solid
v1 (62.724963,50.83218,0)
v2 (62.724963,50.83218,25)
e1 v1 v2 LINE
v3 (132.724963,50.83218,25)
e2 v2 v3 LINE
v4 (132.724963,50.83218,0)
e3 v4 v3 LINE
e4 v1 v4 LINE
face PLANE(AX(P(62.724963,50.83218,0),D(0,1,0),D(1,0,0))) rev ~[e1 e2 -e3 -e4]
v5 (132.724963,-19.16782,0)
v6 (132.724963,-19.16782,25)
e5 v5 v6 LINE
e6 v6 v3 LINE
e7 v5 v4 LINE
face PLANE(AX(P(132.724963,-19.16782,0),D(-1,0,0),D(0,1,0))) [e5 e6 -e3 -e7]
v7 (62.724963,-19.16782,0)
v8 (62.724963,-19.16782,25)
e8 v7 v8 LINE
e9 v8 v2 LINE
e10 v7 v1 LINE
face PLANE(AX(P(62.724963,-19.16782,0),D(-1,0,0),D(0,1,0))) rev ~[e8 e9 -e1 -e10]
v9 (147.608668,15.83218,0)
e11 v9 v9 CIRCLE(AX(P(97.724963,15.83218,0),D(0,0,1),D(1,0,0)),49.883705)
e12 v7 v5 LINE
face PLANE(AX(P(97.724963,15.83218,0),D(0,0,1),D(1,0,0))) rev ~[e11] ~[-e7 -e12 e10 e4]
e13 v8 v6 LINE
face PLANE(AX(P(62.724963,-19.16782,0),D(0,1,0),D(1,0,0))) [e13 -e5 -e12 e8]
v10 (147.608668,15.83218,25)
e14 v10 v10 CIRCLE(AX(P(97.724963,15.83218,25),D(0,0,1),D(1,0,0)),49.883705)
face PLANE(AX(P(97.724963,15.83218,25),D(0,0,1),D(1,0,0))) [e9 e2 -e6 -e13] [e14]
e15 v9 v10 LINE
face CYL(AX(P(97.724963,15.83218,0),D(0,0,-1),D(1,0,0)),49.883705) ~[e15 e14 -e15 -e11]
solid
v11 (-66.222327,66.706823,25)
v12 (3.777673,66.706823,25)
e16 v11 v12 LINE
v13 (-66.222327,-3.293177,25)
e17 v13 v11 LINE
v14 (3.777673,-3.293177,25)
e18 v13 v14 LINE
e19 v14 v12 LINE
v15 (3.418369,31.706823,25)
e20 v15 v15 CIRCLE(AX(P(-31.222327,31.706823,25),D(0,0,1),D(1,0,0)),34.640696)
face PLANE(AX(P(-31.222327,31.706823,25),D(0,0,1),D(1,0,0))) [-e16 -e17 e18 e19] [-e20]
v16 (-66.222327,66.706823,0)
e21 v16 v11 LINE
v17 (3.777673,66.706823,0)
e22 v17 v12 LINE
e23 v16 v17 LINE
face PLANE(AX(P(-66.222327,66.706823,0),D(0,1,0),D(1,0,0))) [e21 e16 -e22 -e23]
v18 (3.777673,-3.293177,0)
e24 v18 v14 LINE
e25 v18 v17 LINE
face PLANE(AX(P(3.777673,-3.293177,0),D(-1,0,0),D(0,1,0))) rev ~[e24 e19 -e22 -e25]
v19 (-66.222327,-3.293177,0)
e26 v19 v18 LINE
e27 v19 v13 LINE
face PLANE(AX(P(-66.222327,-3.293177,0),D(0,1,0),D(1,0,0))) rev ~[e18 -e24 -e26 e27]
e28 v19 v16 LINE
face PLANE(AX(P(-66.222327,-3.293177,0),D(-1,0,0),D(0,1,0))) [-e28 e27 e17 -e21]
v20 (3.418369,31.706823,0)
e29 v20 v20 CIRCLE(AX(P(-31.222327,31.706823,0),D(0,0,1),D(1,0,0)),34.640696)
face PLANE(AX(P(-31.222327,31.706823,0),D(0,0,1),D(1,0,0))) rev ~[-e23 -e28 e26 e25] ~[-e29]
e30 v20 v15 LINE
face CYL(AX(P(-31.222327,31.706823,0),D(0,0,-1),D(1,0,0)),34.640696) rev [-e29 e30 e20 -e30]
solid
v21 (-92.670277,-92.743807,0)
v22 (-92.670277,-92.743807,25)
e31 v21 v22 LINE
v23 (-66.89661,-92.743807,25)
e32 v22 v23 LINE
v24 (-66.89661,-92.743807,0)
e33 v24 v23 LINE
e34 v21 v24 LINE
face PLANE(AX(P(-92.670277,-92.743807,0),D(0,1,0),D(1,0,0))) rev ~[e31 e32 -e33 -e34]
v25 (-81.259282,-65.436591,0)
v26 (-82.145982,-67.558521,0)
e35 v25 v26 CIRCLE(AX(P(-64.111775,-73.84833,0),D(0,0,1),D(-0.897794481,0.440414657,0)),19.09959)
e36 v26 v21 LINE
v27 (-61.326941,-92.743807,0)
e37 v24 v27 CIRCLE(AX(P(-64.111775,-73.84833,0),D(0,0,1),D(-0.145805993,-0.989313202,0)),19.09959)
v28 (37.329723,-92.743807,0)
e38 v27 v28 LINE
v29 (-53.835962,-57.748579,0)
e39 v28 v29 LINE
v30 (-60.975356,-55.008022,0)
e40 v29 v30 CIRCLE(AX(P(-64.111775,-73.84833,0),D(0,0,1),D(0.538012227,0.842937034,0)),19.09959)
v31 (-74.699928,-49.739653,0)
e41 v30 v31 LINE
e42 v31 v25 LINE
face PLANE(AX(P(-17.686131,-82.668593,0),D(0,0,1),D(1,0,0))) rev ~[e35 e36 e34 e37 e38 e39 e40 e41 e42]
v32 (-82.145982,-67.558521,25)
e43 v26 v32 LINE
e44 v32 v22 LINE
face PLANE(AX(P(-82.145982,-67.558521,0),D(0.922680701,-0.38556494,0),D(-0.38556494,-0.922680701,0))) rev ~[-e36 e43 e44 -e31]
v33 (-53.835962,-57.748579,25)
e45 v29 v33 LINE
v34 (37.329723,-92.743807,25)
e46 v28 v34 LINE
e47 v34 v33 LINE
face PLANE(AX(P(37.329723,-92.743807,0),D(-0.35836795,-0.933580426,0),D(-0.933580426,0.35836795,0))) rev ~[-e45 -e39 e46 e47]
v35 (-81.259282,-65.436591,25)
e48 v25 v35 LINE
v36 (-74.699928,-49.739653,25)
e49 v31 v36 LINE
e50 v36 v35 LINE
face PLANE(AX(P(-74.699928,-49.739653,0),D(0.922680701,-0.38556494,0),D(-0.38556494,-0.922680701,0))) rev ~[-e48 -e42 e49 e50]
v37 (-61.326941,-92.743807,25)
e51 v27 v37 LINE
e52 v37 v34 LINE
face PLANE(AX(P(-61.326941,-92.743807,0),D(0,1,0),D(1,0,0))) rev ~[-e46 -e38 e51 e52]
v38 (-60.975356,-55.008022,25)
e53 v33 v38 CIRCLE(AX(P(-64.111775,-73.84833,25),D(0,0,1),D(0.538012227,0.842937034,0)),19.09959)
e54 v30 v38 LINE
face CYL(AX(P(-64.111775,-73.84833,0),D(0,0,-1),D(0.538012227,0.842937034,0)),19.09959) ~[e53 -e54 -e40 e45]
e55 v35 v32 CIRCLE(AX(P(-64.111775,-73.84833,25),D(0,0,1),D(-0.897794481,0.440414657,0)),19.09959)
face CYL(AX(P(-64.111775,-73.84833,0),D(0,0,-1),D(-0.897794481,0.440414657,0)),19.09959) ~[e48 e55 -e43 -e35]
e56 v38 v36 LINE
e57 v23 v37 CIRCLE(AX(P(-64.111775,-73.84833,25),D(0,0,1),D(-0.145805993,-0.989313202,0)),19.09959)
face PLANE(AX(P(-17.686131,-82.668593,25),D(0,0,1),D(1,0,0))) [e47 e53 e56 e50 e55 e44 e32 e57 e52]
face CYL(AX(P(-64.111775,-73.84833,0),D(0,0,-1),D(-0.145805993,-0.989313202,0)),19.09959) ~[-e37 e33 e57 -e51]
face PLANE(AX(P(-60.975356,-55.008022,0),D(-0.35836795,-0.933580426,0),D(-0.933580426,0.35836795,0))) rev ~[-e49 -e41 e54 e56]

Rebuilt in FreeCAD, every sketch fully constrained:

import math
import FreeCAD as App
import Part
import Sketcher

V = App.Vector
Q = App.Units.Quantity


def add_polygon(sketch, points):
    """Adds a closed chain of lines whose ends are joined by coincident constraints."""
    first, n = sketch.GeometryCount, len(points)
    for a, b in zip(points, points[1:] + points[:1]):
        sketch.addGeometry(Part.LineSegment(App.Vector(*a, 0), App.Vector(*b, 0)), False)
    for i in range(n):
        sketch.addConstraint(Sketcher.Constraint("Coincident", first + i, 2, first + (i + 1) % n, 1))

doc = App.newDocument("Part")
body = doc.addObject("PartDesign::Body", "Body")

sketch1 = body.newObject("Sketcher::SketchObject", "Sketch")
sketch1.AttachmentSupport = (doc.getObject("XY_Plane"), [""])
sketch1.MapMode = "FlatFace"
add_polygon(sketch1, [(-66, 67), (-66, -3), (4, -3), (4, 67)])
sketch1.addGeometry(Part.Circle(V(-31, 32, 0), V(0, 0, 1), 35), False)
sketch1.addConstraint([
    Sketcher.Constraint("Vertical", 0),
    Sketcher.Constraint("Horizontal", 1),
    Sketcher.Constraint("Vertical", 2),
    Sketcher.Constraint("Horizontal", 3),
    Sketcher.Constraint("Equal", 3, 0),
    Sketcher.Constraint("DistanceX", 1, 1, 1, 2, Q("70 mm")),
    Sketcher.Constraint("DistanceX", 0, 2, 4, 3, Q("35 mm")),
    Sketcher.Constraint("DistanceY", 0, 2, 4, 3, Q("35 mm")),
    Sketcher.Constraint("Diameter", 4, Q("69.281391 mm")),
    Sketcher.Constraint("DistanceX", 4, 3, -1, 1, Q("31.222327 mm")),
    Sketcher.Constraint("DistanceY", -1, 1, 4, 3, Q("31.706823 mm")),
])
pad1 = body.newObject("PartDesign::Pad", "Pad")
pad1.Profile = sketch1
pad1.Length = 25
body2 = doc.addObject("PartDesign::Body", "Body001")

sketch2 = body2.newObject("Sketcher::SketchObject", "Sketch001")
sketch2.AttachmentSupport = (doc.getObject("XY_Plane001"), [""])
sketch2.MapMode = "FlatFace"
sketch2.addGeometry(Part.Circle(V(98, 16, 0), V(0, 0, 1), 50), False)
add_polygon(sketch2, [(133, -19), (63, -19), (63, 51), (133, 51)])
sketch2.addConstraint([
    Sketcher.Constraint("Horizontal", 1),
    Sketcher.Constraint("Vertical", 2),
    Sketcher.Constraint("Horizontal", 3),
    Sketcher.Constraint("Vertical", 4),
    Sketcher.Constraint("Equal", 3, 2),
    Sketcher.Constraint("DistanceX", 1, 2, 1, 1, Q("70 mm")),
    Sketcher.Constraint("DistanceX", 1, 2, 0, 3, Q("35 mm")),
    Sketcher.Constraint("DistanceY", 1, 2, 0, 3, Q("35 mm")),
    Sketcher.Constraint("Diameter", 0, Q("99.76741 mm")),
    Sketcher.Constraint("DistanceY", -1, 1, 0, 3, Q("15.83218 mm")),
    Sketcher.Constraint("DistanceX", -1, 1, 0, 3, Q("97.724963 mm")),
])
pad2 = body2.newObject("PartDesign::Pad", "Pad001")
pad2.Profile = sketch2
pad2.Length = 25
body3 = doc.addObject("PartDesign::Body", "Body002")

sketch3 = body3.newObject("Sketcher::SketchObject", "Sketch002")
sketch3.AttachmentSupport = (doc.getObject("XY_Plane002"), [""])
sketch3.MapMode = "FlatFace"
sketch3.addGeometry([
    Part.LineSegment(V(-61.3, -92.7, 0), V(37.3, -92.7, 0)),
    Part.LineSegment(V(37.3, -92.7, 0), V(-53.8, -57.7, 0)),
    Part.ArcOfCircle(Part.Circle(V(-64.1, -73.8, 0), V(0, 0, 1), 19.1), math.radians(57), math.radians(81)),
    Part.LineSegment(V(-61, -55, 0), V(-74.7, -49.7, 0)),
    Part.LineSegment(V(-74.7, -49.7, 0), V(-81.3, -65.4, 0)),
    Part.ArcOfCircle(Part.Circle(V(-64.1, -73.8, 0), V(0, 0, 1), 19.1), math.radians(153.87), math.radians(160.77)),
    Part.LineSegment(V(-82.1, -67.6, 0), V(-92.7, -92.7, 0)),
    Part.LineSegment(V(-92.7, -92.7, 0), V(-66.9, -92.7, 0)),
    Part.ArcOfCircle(Part.Circle(V(-64.1, -73.8, 0), V(0, 0, 1), 19.1), math.radians(-98.38), math.radians(-81.62)),
], False)
sketch3.addConstraint([
    Sketcher.Constraint("Coincident", 0, 2, 1, 1),
    Sketcher.Constraint("Coincident", 1, 2, 2, 1),
    Sketcher.Constraint("Coincident", 2, 2, 3, 1),
    Sketcher.Constraint("Coincident", 3, 2, 4, 1),
    Sketcher.Constraint("Coincident", 4, 2, 5, 1),
    Sketcher.Constraint("Coincident", 5, 2, 6, 1),
    Sketcher.Constraint("Coincident", 6, 2, 7, 1),
    Sketcher.Constraint("Coincident", 7, 2, 8, 1),
    Sketcher.Constraint("Coincident", 8, 2, 0, 1),
    Sketcher.Constraint("Horizontal", 0),
    Sketcher.Constraint("Horizontal", 7),
    Sketcher.Constraint("Coincident", 5, 3, 2, 3),
    Sketcher.Constraint("Coincident", 8, 3, 2, 3),
    Sketcher.Constraint("Equal", 2, 5),
    Sketcher.Constraint("Equal", 5, 8),
    Sketcher.Constraint("Parallel", 1, 3),
    Sketcher.Constraint("Parallel", 4, 6),
    Sketcher.Constraint("Horizontal", 0, 2, 6, 2),
    Sketcher.Constraint("Angle", 1, Q("159 deg")),
    Sketcher.Constraint("Radius", 2, Q("19.09959 mm")),
    Sketcher.Constraint("DistanceX", 5, 3, 0, 2, Q("101.441499 mm")),
    Sketcher.Constraint("DistanceX", 5, 2, 4, 2, Q("0.886701 mm")),
    Sketcher.Constraint("DistanceX", 6, 2, 2, 3, Q("28.558501 mm")),
    Sketcher.Constraint("Distance", 4, Q("17.012319 mm")),
    Sketcher.Constraint("DistanceX", 0, 1, 0, 2, Q("98.656664 mm")),
    Sketcher.Constraint("DistanceY", 2, 3, -1, 1, Q("73.84833 mm")),
    Sketcher.Constraint("DistanceX", 4, 2, -1, 1, Q("81.259282 mm")),
    Sketcher.Constraint("DistanceY", 4, 2, -1, 1, Q("65.436591 mm")),
])
pad3 = body3.newObject("PartDesign::Pad", "Pad002")
pad3.Profile = sketch3
pad3.Length = 25

doc.recompute()
